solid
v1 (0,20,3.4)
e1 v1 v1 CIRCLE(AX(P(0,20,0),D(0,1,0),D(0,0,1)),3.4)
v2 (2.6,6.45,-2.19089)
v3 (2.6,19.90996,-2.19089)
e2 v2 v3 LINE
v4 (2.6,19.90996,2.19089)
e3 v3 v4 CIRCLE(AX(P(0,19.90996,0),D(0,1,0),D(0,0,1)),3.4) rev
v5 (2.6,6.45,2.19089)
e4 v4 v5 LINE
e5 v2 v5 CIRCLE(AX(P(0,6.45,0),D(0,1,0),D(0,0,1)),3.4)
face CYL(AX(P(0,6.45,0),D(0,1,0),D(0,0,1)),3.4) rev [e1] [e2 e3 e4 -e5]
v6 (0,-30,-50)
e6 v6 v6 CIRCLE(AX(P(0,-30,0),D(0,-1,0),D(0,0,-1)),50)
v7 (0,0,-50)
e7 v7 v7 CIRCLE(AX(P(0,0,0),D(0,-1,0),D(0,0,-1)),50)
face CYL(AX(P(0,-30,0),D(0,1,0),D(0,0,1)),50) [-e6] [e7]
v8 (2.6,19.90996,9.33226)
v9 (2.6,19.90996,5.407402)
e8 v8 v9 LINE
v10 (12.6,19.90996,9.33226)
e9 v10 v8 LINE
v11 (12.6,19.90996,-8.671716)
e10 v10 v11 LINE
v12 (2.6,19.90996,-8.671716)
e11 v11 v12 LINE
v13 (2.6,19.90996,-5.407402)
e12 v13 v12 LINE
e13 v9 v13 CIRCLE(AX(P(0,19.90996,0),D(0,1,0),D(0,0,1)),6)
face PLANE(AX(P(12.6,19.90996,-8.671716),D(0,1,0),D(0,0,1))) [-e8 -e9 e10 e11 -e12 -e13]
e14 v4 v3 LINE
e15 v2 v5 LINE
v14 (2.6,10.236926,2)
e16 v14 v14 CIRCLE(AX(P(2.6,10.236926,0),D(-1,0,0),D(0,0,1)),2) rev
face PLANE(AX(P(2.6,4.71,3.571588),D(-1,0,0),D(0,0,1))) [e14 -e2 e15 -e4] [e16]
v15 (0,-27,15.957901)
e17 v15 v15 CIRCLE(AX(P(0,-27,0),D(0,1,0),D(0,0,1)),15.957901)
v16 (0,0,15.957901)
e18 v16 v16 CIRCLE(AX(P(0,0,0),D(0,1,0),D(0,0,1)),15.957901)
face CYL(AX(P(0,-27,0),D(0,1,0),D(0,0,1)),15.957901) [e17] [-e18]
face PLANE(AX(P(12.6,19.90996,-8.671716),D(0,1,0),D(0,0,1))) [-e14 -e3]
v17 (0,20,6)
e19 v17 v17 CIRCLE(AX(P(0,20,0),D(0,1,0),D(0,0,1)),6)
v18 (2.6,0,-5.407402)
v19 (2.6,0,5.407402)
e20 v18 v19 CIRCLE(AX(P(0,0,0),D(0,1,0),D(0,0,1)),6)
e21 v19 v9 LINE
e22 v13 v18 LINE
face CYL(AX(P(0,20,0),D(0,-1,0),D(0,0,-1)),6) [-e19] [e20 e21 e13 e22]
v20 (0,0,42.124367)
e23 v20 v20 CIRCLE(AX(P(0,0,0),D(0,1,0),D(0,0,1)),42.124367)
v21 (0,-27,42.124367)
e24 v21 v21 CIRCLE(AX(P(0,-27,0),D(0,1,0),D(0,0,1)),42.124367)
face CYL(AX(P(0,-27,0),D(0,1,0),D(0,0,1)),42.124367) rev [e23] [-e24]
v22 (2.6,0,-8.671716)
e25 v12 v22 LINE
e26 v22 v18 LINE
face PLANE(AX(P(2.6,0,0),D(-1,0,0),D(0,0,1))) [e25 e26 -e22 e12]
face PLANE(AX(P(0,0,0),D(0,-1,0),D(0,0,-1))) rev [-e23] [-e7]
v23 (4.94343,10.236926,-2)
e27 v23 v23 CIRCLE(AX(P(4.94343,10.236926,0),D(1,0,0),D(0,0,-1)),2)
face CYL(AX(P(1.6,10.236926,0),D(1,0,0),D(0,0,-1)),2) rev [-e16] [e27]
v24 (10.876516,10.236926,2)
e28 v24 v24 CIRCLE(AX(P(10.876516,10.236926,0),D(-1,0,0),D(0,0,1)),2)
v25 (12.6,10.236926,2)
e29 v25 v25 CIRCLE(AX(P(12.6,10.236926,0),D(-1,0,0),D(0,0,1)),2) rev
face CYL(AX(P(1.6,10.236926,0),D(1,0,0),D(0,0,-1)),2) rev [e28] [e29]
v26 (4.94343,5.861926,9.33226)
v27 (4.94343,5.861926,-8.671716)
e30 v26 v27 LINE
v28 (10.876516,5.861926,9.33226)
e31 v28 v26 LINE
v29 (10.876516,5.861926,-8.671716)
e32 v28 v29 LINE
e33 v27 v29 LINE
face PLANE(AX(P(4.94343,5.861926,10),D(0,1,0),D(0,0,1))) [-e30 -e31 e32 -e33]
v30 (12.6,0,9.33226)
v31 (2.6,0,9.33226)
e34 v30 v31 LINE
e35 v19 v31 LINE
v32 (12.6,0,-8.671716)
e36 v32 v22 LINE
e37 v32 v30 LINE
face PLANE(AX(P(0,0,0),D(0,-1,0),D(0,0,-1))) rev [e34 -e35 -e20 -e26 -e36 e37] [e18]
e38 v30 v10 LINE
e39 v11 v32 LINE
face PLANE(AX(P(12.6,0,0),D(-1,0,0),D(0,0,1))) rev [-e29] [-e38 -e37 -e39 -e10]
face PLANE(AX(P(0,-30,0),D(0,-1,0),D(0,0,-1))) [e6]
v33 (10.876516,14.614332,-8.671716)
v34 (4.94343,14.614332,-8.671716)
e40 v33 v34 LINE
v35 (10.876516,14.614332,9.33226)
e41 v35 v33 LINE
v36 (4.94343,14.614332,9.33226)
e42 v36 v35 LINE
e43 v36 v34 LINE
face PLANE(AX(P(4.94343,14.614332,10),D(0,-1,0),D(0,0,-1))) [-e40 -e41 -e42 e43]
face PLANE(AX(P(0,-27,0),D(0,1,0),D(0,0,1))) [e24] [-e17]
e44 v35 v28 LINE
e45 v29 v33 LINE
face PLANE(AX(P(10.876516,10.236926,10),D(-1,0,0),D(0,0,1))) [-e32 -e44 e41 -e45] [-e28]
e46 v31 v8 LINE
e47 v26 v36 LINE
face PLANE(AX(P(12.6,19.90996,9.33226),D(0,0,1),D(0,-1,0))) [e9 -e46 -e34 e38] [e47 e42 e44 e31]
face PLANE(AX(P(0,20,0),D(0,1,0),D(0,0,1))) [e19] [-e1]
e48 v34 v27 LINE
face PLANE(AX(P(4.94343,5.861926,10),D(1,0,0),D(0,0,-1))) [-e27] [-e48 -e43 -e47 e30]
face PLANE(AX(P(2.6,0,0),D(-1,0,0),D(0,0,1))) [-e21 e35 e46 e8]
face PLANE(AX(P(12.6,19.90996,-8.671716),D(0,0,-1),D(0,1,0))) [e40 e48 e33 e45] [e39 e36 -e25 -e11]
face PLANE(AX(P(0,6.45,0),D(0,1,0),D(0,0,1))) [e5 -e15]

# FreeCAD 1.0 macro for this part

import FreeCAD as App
import Part
import Sketcher

V = App.Vector
Q = App.Units.Quantity

doc = App.newDocument("Part")
body = doc.addObject("PartDesign::Body", "Body")

# Sketch on XZ plane
sketch1 = body.newObject("Sketcher::SketchObject", "Sketch")
sketch1.AttachmentSupport = (doc.getObject("XZ_Plane"), [""])
sketch1.MapMode = "FlatFace"
sketch1.addGeometry(Part.Circle(V(0, 0, 0), V(0, 0, 1), 6), False)
sketch1.addConstraint(Sketcher.Constraint("Coincident", 0, 3, -1, 1))
sketch1.addConstraint(Sketcher.Constraint("Diameter", 0, Q("12 mm")))
pad1 = body.newObject("PartDesign::Pad", "Pad")
pad1.Profile = sketch1
pad1.Length = 20
pad1.Reversed = True

# Sketch on XZ plane
sketch2 = body.newObject("Sketcher::SketchObject", "Sketch001")
sketch2.AttachmentSupport = (doc.getObject("XZ_Plane"), [""])
sketch2.MapMode = "FlatFace"
sketch2.AttachmentOffset = App.Placement(V(0, 0, -20), App.Rotation())
sketch2.addGeometry(Part.Circle(V(0, 0, 0), V(0, 0, 1), 3.4), False)
sketch2.addConstraint(Sketcher.Constraint("Coincident", 0, 3, -1, 1))
sketch2.addConstraint(Sketcher.Constraint("Diameter", 0, Q("6.8 mm")))
pocket1 = body.newObject("PartDesign::Pocket", "Pocket")
pocket1.Profile = sketch2
pocket1.Length = 13.55
pocket1.Reversed = True

# Sketch on XZ plane
sketch3 = body.newObject("Sketcher::SketchObject", "Sketch002")
sketch3.AttachmentSupport = (doc.getObject("XZ_Plane"), [""])
sketch3.MapMode = "FlatFace"
sketch3.AttachmentOffset = App.Placement(V(0, 0, -18.26), App.Rotation())
sketch3.addGeometry(Part.LineSegment(V(2.6, -3.6, 0), V(2.6, 3.6, 0)), False)
sketch3.addGeometry(Part.LineSegment(V(2.6, 3.6, 0), V(4.2, 3.6, 0)), False)
sketch3.addGeometry(Part.LineSegment(V(4.2, 3.6, 0), V(4.2, -3.6, 0)), False)
sketch3.addGeometry(Part.LineSegment(V(4.2, -3.6, 0), V(2.6, -3.6, 0)), False)
sketch3.addConstraint(Sketcher.Constraint("Coincident", 0, 2, 1, 1))
sketch3.addConstraint(Sketcher.Constraint("Coincident", 1, 2, 2, 1))
sketch3.addConstraint(Sketcher.Constraint("Coincident", 2, 2, 3, 1))
sketch3.addConstraint(Sketcher.Constraint("Coincident", 3, 2, 0, 1))
sketch3.addConstraint(Sketcher.Constraint("Vertical", 0))
sketch3.addConstraint(Sketcher.Constraint("Horizontal", 1))
sketch3.addConstraint(Sketcher.Constraint("Vertical", 2))
sketch3.addConstraint(Sketcher.Constraint("Horizontal", 3))
sketch3.addConstraint(Sketcher.Constraint("DistanceX", -1, 1, 0, 2, Q("2.6 mm")))
sketch3.addConstraint(Sketcher.Constraint("DistanceX", 1, 1, 1, 2, Q("1.550685 mm")))
sketch3.addConstraint(Sketcher.Constraint("DistanceY", 0, 1, 0, 2, Q("7.184216 mm")))
sketch3.addConstraint(Sketcher.Constraint("DistanceY", -1, 1, 0, 2, Q("3.571588 mm")))
pad2 = body.newObject("PartDesign::Pad", "Pad001")
pad2.Profile = sketch3
pad2.Length = 13.55

# Sketch on YZ plane
sketch4 = body.newObject("Sketcher::SketchObject", "Sketch003")
sketch4.AttachmentSupport = (doc.getObject("YZ_Plane"), [""])
sketch4.MapMode = "FlatFace"
sketch4.AttachmentOffset = App.Placement(V(0, 0, 2.6), App.Rotation())
sketch4.addGeometry(Part.LineSegment(V(20, -9, 0), V(0, -9, 0)), False)
sketch4.addGeometry(Part.LineSegment(V(0, -9, 0), V(0, 9, 0)), False)
sketch4.addGeometry(Part.LineSegment(V(0, 9, 0), V(20, 9, 0)), False)
sketch4.addGeometry(Part.LineSegment(V(20, 9, 0), V(20, -9, 0)), False)
sketch4.addConstraint(Sketcher.Constraint("Coincident", 0, 2, 1, 1))
sketch4.addConstraint(Sketcher.Constraint("Coincident", 1, 2, 2, 1))
sketch4.addConstraint(Sketcher.Constraint("Coincident", 2, 2, 3, 1))
sketch4.addConstraint(Sketcher.Constraint("Coincident", 3, 2, 0, 1))
sketch4.addConstraint(Sketcher.Constraint("Horizontal", 0))
sketch4.addConstraint(Sketcher.Constraint("Vertical", 1))
sketch4.addConstraint(Sketcher.Constraint("Horizontal", 2))
sketch4.addConstraint(Sketcher.Constraint("Vertical", 3))
sketch4.addConstraint(Sketcher.Constraint("PointOnObject", 0, 2, -2))
sketch4.addConstraint(Sketcher.Constraint("DistanceX", 0, 2, 0, 1, Q("19.90996 mm")))
sketch4.addConstraint(Sketcher.Constraint("DistanceY", 1, 1, 1, 2, Q("18.003976 mm")))
sketch4.addConstraint(Sketcher.Constraint("DistanceY", -1, 1, 1, 2, Q("9.33226 mm")))
pad3 = body.newObject("PartDesign::Pad", "Pad002")
pad3.Profile = sketch4
pad3.Length = 10

# Sketch on YZ plane
sketch5 = body.newObject("Sketcher::SketchObject", "Sketch004")
sketch5.AttachmentSupport = (doc.getObject("YZ_Plane"), [""])
sketch5.MapMode = "FlatFace"
sketch5.AttachmentOffset = App.Placement(V(0, 0, 2.6), App.Rotation())
sketch5.addGeometry(Part.Circle(V(10.2, 0, 0), V(0, 0, 1), 2), False)
sketch5.addConstraint(Sketcher.Constraint("PointOnObject", 0, 3, -1))
sketch5.addConstraint(Sketcher.Constraint("Diameter", 0, Q("4 mm")))
sketch5.addConstraint(Sketcher.Constraint("DistanceX", -1, 1, 0, 3, Q("10.236926 mm")))
pocket2 = body.newObject("PartDesign::Pocket", "Pocket001")
pocket2.Profile = sketch5
pocket2.Type = "TwoLengths"
pocket2.Length = 1
pocket2.Length2 = 13.55

# Sketch on XY plane
sketch6 = body.newObject("Sketcher::SketchObject", "Sketch005")
sketch6.AttachmentSupport = (doc.getObject("XY_Plane"), [""])
sketch6.MapMode = "FlatFace"
sketch6.addGeometry(Part.LineSegment(V(11, 6, 0), V(11, 15, 0)), False)
sketch6.addGeometry(Part.LineSegment(V(11, 15, 0), V(5, 15, 0)), False)
sketch6.addGeometry(Part.LineSegment(V(5, 15, 0), V(5, 6, 0)), False)
sketch6.addGeometry(Part.LineSegment(V(5, 6, 0), V(11, 6, 0)), False)
sketch6.addConstraint(Sketcher.Constraint("Coincident", 0, 2, 1, 1))
sketch6.addConstraint(Sketcher.Constraint("Coincident", 1, 2, 2, 1))
sketch6.addConstraint(Sketcher.Constraint("Coincident", 2, 2, 3, 1))
sketch6.addConstraint(Sketcher.Constraint("Coincident", 3, 2, 0, 1))
sketch6.addConstraint(Sketcher.Constraint("Vertical", 0))
sketch6.addConstraint(Sketcher.Constraint("Horizontal", 1))
sketch6.addConstraint(Sketcher.Constraint("Vertical", 2))
sketch6.addConstraint(Sketcher.Constraint("Horizontal", 3))
sketch6.addConstraint(Sketcher.Constraint("DistanceX", 1, 2, 1, 1, Q("5.933086 mm")))
sketch6.addConstraint(Sketcher.Constraint("DistanceY", 0, 1, 0, 2, Q("8.752407 mm")))
sketch6.addConstraint(Sketcher.Constraint("DistanceX", -1, 1, 1, 2, Q("4.94343 mm")))
sketch6.addConstraint(Sketcher.Constraint("DistanceY", -1, 1, 0, 2, Q("14.614332 mm")))
pocket3 = body.newObject("PartDesign::Pocket", "Pocket002")
pocket3.Profile = sketch6
pocket3.Type = "ThroughAll"
pocket3.Midplane = True

# Sketch on XZ plane
sketch7 = body.newObject("Sketcher::SketchObject", "Sketch006")
sketch7.AttachmentSupport = (doc.getObject("XZ_Plane"), [""])
sketch7.MapMode = "FlatFace"
sketch7.addGeometry(Part.Circle(V(0, 0, 0), V(0, 0, 1), 50), False)
sketch7.addConstraint(Sketcher.Constraint("Coincident", 0, 3, -1, 1))
sketch7.addConstraint(Sketcher.Constraint("Diameter", 0, Q("100 mm")))
pad4 = body.newObject("PartDesign::Pad", "Pad003")
pad4.Profile = sketch7
pad4.Length = 30

# Sketch on XZ plane
sketch8 = body.newObject("Sketcher::SketchObject", "Sketch007")
sketch8.AttachmentSupport = (doc.getObject("XZ_Plane"), [""])
sketch8.MapMode = "FlatFace"
sketch8.addGeometry(Part.Circle(V(0, 0, 0), V(0, 0, 1), 42), False)
sketch8.addGeometry(Part.Circle(V(0, 0, 0), V(0, 0, 1), 16), False)
sketch8.addConstraint(Sketcher.Constraint("Coincident", 0, 3, -1, 1))
sketch8.addConstraint(Sketcher.Constraint("Coincident", 1, 3, -1, 1))
sketch8.addConstraint(Sketcher.Constraint("Diameter", 1, Q("31.915802 mm")))
sketch8.addConstraint(Sketcher.Constraint("Diameter", 0, Q("84.248733 mm")))
pocket4 = body.newObject("PartDesign::Pocket", "Pocket003")
pocket4.Profile = sketch8
pocket4.Length = 27
pocket4.Reversed = True

doc.recompute()
